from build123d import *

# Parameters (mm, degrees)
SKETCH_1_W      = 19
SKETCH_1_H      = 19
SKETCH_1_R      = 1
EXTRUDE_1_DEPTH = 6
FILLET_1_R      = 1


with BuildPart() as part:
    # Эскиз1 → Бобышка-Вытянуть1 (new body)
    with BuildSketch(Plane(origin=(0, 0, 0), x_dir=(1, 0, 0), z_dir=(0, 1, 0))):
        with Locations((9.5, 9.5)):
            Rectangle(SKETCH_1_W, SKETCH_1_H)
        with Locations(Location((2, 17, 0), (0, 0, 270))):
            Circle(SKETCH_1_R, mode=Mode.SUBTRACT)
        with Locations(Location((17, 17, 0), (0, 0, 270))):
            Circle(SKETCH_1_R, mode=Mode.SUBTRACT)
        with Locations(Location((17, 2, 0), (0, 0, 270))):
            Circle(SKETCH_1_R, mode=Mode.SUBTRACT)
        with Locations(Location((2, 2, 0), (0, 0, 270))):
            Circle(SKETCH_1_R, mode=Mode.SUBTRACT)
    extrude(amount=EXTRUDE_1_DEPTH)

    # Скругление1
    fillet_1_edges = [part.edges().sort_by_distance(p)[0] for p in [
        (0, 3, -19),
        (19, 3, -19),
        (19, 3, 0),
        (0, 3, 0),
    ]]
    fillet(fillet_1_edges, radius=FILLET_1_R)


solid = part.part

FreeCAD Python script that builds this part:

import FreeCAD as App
import Part
import Sketcher


def edges_at(feature, points):
    """Names of the edges that pass closest to the given points."""
    edges = feature.Shape.Edges
    near = lambda p: min(range(len(edges)), key=lambda i: edges[i].distToShape(Part.Vertex(*p))[0])
    return sorted({f"Edge{near(p) + 1}" for p in points})

doc = App.newDocument("Part")
params = doc.addObject("Spreadsheet::Sheet", "Params")
for row, (alias, value) in enumerate([
    ("sketch1_diameter", "2 mm"),
    ("sketch1_width", "19 mm"),
    ("pad1_length", "6 mm"),
    ("fillet_radius", "1 mm"),
], start=1):
    params.set(f"A{row}", alias)
    params.set(f"B{row}", "=" + value)
    params.setAlias(f"B{row}", alias)

body = doc.addObject("PartDesign::Body", "Body")

sketch1 = doc.addObject("Sketcher::SketchObject", "Sketch")
body.addObject(sketch1)
sketch1.AttachmentSupport = (doc.XZ_Plane, [""])
sketch1.MapMode = "FlatFace"
sketch1.addGeometry(Part.LineSegment(App.Vector(0, -19, 0), App.Vector(0, 0, 0)), False)
sketch1.addGeometry(Part.LineSegment(App.Vector(0, 0, 0), App.Vector(19, 0, 0)), False)
sketch1.addGeometry(Part.LineSegment(App.Vector(19, 0, 0), App.Vector(19, -19, 0)), False)
sketch1.addGeometry(Part.LineSegment(App.Vector(19, -19, 0), App.Vector(0, -19, 0)), False)
sketch1.addGeometry(Part.Circle(App.Vector(2, -2, 0), App.Vector(0, 0, 1), 1), False)
sketch1.addGeometry(Part.Circle(App.Vector(17, -2, 0), App.Vector(0, 0, 1), 1), False)
sketch1.addGeometry(Part.Circle(App.Vector(2, -17, 0), App.Vector(0, 0, 1), 1), False)
sketch1.addGeometry(Part.Circle(App.Vector(17, -17, 0), App.Vector(0, 0, 1), 1), False)
sketch1.addConstraint(Sketcher.Constraint("Coincident", 0, 2, 1, 1))
sketch1.addConstraint(Sketcher.Constraint("Coincident", 1, 2, 2, 1))
sketch1.addConstraint(Sketcher.Constraint("Coincident", 2, 2, 3, 1))
sketch1.addConstraint(Sketcher.Constraint("Coincident", 3, 2, 0, 1))
sketch1.addConstraint(Sketcher.Constraint("Vertical", 0))
sketch1.addConstraint(Sketcher.Constraint("Horizontal", 1))
sketch1.addConstraint(Sketcher.Constraint("Vertical", 2))
sketch1.addConstraint(Sketcher.Constraint("Horizontal", 3))
sketch1.addConstraint(Sketcher.Constraint("Coincident", 0, 2, -1, 1))
sketch1.addConstraint(Sketcher.Constraint("Equal", 4, 5))
sketch1.addConstraint(Sketcher.Constraint("Equal", 5, 6))
sketch1.addConstraint(Sketcher.Constraint("Equal", 6, 7))
sketch1.addConstraint(Sketcher.Constraint("Horizontal", 4, 3, 5, 3))
sketch1.addConstraint(Sketcher.Constraint("Horizontal", 6, 3, 7, 3))
sketch1.addConstraint(Sketcher.Constraint("Vertical", 4, 3, 6, 3))
sketch1.addConstraint(Sketcher.Constraint("Vertical", 5, 3, 7, 3))
sketch1.addConstraint(Sketcher.Constraint("Equal", 3, 0))
sketch1.addConstraint(Sketcher.Constraint("Diameter", 4, 2.0))
sketch1.addConstraint(Sketcher.Constraint("DistanceX", 1, 1, 1, 2, 19.0))
sketch1.addConstraint(Sketcher.Constraint("DistanceX", -1, 1, 4, 3, 2.0))
sketch1.addConstraint(Sketcher.Constraint("DistanceY", 4, 3, -1, 1, 2.0))
sketch1.addConstraint(Sketcher.Constraint("DistanceX", -1, 1, 5, 3, 17.0))
sketch1.addConstraint(Sketcher.Constraint("DistanceY", 6, 3, -1, 1, 17.0))
sketch1.setExpression("Constraints[17]", "Params.sketch1_diameter")
sketch1.setExpression("Constraints[18]", "Params.sketch1_width")
pad1 = doc.addObject("PartDesign::Pad", "Pad")
body.addObject(pad1)
pad1.Profile = sketch1
pad1.setExpression("Length", "Params.pad1_length")
pad1.Reversed = True
doc.recompute()

fillet = doc.addObject("PartDesign::Fillet", "Fillet")
body.addObject(fillet)
fillet.Base = (pad1, edges_at(pad1, [
    (0, 3, -19),
    (19, 3, -19),
    (19, 3, 0),
    (0, 3, 0),
]))
fillet.setExpression("Radius", "Params.fillet_radius")

doc.recompute()
